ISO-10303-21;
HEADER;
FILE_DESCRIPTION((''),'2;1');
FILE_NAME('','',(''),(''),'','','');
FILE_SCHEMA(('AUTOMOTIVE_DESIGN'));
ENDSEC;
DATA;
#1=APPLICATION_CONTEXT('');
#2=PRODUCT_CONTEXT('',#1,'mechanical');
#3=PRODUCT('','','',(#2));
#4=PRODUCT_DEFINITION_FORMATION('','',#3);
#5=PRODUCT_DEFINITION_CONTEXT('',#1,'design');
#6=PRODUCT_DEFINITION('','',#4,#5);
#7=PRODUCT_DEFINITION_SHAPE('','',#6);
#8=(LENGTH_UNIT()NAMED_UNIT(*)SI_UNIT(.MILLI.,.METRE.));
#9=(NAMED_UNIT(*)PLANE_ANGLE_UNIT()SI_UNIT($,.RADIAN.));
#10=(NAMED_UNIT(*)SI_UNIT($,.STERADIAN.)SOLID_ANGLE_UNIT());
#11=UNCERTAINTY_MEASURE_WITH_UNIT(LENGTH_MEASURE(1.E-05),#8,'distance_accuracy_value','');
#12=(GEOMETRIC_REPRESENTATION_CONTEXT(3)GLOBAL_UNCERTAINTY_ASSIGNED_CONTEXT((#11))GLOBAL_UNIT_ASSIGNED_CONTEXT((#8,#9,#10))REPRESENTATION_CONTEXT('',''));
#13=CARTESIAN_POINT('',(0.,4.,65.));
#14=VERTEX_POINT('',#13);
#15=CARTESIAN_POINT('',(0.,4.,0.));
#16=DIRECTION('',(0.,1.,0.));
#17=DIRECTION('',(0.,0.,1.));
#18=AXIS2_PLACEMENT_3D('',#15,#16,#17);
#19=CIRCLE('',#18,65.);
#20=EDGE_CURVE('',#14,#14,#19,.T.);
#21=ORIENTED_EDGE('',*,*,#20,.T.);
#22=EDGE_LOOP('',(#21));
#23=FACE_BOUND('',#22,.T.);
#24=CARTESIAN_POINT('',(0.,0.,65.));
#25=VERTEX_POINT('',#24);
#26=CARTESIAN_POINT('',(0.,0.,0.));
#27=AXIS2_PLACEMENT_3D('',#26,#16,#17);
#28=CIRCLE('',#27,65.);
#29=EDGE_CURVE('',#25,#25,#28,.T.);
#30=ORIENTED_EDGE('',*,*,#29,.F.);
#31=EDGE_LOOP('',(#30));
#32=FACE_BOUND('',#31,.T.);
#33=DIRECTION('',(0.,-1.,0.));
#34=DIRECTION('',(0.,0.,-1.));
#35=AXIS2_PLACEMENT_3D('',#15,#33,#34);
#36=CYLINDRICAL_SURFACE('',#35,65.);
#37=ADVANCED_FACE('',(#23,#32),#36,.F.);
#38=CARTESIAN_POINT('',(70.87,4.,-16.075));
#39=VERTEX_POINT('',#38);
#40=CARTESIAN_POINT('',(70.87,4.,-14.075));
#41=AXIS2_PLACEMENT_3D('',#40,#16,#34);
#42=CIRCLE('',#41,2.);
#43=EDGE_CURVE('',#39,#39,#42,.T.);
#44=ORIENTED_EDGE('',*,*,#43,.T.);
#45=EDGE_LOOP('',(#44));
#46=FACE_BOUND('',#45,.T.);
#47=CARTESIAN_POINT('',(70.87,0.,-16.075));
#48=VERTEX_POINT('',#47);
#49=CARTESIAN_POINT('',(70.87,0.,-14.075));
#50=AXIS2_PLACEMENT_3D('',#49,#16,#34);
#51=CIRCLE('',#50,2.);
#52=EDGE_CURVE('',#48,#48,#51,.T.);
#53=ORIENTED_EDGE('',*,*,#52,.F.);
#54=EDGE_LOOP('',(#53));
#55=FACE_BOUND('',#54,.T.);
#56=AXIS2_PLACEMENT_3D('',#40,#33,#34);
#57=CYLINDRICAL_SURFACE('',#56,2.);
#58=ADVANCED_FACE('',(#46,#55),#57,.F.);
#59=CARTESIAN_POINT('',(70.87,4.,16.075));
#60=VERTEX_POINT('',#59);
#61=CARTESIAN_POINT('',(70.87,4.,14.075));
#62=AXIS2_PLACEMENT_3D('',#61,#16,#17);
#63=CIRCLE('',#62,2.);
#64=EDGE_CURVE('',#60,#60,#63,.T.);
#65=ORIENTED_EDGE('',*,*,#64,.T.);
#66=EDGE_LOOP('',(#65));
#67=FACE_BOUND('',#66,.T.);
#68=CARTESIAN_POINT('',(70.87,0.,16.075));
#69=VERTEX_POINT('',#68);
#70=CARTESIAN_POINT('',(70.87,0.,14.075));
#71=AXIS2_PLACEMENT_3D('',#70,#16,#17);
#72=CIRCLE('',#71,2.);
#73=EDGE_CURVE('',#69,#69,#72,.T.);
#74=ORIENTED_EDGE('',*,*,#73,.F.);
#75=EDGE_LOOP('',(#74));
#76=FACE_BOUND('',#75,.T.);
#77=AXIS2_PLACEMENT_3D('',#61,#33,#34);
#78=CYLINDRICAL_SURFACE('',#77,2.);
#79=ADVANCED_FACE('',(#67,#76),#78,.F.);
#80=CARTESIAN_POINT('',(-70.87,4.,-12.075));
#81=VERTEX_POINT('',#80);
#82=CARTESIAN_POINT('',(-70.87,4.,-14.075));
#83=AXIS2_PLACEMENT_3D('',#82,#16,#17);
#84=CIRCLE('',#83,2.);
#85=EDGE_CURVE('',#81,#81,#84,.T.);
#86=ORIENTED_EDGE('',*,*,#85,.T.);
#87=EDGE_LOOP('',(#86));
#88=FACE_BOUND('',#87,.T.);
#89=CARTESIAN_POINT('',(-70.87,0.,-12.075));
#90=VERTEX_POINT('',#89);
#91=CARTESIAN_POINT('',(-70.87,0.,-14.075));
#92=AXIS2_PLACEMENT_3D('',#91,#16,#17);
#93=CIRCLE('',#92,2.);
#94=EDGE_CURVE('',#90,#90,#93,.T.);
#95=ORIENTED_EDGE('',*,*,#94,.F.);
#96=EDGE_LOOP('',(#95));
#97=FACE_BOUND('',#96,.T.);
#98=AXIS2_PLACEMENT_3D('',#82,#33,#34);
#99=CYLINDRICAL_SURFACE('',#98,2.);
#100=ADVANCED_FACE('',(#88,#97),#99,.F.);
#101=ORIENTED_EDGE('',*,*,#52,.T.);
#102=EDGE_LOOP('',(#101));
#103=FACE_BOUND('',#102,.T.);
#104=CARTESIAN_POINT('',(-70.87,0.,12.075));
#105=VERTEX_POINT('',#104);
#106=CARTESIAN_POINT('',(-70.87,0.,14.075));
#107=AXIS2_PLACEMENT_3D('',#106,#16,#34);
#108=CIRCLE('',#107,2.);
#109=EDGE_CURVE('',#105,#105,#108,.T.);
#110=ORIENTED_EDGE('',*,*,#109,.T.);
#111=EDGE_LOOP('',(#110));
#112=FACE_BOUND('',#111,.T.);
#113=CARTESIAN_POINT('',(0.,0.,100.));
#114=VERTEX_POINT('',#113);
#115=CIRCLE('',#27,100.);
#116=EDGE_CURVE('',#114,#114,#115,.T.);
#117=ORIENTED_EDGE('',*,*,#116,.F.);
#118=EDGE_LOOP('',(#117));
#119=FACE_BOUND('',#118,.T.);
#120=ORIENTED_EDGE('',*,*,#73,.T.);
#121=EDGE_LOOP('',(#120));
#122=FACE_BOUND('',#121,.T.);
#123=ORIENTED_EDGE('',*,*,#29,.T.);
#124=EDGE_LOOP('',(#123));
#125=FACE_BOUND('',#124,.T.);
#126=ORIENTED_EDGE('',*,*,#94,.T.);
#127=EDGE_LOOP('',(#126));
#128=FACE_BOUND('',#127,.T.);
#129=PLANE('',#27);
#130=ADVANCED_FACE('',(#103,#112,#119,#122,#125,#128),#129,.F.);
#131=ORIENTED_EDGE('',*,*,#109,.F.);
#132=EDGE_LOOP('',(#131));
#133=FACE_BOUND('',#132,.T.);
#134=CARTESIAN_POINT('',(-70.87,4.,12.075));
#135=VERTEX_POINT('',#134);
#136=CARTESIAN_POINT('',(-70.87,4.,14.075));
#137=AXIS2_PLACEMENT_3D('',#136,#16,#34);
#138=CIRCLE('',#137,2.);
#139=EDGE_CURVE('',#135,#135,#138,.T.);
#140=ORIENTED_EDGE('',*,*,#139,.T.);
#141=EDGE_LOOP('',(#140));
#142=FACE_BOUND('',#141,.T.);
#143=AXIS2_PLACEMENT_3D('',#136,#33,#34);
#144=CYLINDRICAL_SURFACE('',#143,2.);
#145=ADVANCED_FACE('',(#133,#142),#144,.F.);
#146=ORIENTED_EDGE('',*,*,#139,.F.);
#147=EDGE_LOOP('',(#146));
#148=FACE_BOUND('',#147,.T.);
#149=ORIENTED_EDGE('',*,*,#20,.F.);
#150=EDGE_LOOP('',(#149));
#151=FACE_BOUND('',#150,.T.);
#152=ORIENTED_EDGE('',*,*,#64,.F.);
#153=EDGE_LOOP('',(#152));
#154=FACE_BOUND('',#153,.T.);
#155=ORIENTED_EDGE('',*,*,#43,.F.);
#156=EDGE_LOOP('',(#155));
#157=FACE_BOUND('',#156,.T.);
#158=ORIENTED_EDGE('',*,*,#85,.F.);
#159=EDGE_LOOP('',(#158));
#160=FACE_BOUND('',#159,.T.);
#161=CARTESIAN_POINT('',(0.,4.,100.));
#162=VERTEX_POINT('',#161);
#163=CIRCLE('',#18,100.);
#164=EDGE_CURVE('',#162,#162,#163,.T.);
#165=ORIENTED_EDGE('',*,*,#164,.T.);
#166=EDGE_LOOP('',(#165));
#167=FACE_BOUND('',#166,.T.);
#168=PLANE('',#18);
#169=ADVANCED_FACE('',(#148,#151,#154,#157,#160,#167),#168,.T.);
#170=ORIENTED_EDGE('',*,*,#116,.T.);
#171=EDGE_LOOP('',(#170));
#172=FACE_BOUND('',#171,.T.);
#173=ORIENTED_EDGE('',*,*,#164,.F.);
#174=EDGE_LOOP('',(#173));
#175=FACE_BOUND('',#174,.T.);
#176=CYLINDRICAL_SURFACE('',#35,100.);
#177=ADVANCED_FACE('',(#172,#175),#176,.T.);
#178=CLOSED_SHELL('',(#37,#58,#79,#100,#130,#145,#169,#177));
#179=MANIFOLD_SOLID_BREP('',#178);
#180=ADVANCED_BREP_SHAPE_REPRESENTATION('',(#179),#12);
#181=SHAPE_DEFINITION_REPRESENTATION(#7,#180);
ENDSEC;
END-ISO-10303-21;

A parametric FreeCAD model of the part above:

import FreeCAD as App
import Part
import Sketcher
from FreeCAD import Vector
Q = App.Units.Quantity

doc = App.newDocument("Part")
params = doc.addObject("Spreadsheet::Sheet", "Params")
for row, (alias, value) in enumerate([
    ("sketch1_diameter", "200 mm"),
    ("sketch1_diameter2", "4 mm"),
    ("sketch1_diameter3", "130 mm"),
    ("pad1_length", "4 mm"),
], start=1):
    params.set(f"A{row}", alias)
    params.set(f"B{row}", "=" + value)
    params.setAlias(f"B{row}", alias)

body = doc.addObject("PartDesign::Body", "Body")

# Sketch on XZ plane
sketch1 = body.newObject("Sketcher::SketchObject", "Sketch")
sketch1.AttachmentSupport = (doc.getObject("XZ_Plane"), [""])
sketch1.MapMode = "FlatFace"
sketch1.addGeometry([
    Part.Circle(Vector(0, 0, 0), Vector(0, 0, 1), 100),  # 0
    Part.Circle(Vector(-70.9, -14.1, 0), Vector(0, 0, 1), 2),  # 1
    Part.Circle(Vector(-70.9, 14.1, 0), Vector(0, 0, 1), 2),  # 2
    Part.Circle(Vector(70.9, -14.1, 0), Vector(0, 0, 1), 2),  # 3
    Part.Circle(Vector(0, 0, 0), Vector(0, 0, 1), 65),  # 4
    Part.Circle(Vector(70.9, 14.1, 0), Vector(0, 0, 1), 2),  # 5
], False)
sketch1.addConstraint([
    Sketcher.Constraint("Coincident", 0, 3, -1, 1),
    Sketcher.Constraint("Coincident", 4, 3, -1, 1),
    Sketcher.Constraint("Equal", 1, 2),
    Sketcher.Constraint("Equal", 2, 3),
    Sketcher.Constraint("Equal", 3, 5),
    Sketcher.Constraint("Symmetric", 2, 3, 3, 3, -1, 1),
    Sketcher.Constraint("Symmetric", 1, 3, 5, 3, -1, 1),
    Sketcher.Constraint("Symmetric", 1, 3, 3, 3, -2),
    Sketcher.Constraint("Diameter", 0, Q("200 mm")),
    Sketcher.Constraint("Diameter", 1, Q("4 mm")),
    Sketcher.Constraint("Diameter", 4, Q("130 mm")),
    Sketcher.Constraint("DistanceX", 1, 3, -1, 1, Q("70.87 mm")),
    Sketcher.Constraint("DistanceY", 1, 3, 2, 3, Q("28.15 mm")),
])
sketch1.setExpression("Constraints[8]", "Params.sketch1_diameter")
sketch1.setExpression("Constraints[9]", "Params.sketch1_diameter2")
sketch1.setExpression("Constraints[10]", "Params.sketch1_diameter3")
pad1 = body.newObject("PartDesign::Pad", "Pad")
pad1.Profile = sketch1
pad1.setExpression("Length", "Params.pad1_length")
pad1.Reversed = True

doc.recompute()
